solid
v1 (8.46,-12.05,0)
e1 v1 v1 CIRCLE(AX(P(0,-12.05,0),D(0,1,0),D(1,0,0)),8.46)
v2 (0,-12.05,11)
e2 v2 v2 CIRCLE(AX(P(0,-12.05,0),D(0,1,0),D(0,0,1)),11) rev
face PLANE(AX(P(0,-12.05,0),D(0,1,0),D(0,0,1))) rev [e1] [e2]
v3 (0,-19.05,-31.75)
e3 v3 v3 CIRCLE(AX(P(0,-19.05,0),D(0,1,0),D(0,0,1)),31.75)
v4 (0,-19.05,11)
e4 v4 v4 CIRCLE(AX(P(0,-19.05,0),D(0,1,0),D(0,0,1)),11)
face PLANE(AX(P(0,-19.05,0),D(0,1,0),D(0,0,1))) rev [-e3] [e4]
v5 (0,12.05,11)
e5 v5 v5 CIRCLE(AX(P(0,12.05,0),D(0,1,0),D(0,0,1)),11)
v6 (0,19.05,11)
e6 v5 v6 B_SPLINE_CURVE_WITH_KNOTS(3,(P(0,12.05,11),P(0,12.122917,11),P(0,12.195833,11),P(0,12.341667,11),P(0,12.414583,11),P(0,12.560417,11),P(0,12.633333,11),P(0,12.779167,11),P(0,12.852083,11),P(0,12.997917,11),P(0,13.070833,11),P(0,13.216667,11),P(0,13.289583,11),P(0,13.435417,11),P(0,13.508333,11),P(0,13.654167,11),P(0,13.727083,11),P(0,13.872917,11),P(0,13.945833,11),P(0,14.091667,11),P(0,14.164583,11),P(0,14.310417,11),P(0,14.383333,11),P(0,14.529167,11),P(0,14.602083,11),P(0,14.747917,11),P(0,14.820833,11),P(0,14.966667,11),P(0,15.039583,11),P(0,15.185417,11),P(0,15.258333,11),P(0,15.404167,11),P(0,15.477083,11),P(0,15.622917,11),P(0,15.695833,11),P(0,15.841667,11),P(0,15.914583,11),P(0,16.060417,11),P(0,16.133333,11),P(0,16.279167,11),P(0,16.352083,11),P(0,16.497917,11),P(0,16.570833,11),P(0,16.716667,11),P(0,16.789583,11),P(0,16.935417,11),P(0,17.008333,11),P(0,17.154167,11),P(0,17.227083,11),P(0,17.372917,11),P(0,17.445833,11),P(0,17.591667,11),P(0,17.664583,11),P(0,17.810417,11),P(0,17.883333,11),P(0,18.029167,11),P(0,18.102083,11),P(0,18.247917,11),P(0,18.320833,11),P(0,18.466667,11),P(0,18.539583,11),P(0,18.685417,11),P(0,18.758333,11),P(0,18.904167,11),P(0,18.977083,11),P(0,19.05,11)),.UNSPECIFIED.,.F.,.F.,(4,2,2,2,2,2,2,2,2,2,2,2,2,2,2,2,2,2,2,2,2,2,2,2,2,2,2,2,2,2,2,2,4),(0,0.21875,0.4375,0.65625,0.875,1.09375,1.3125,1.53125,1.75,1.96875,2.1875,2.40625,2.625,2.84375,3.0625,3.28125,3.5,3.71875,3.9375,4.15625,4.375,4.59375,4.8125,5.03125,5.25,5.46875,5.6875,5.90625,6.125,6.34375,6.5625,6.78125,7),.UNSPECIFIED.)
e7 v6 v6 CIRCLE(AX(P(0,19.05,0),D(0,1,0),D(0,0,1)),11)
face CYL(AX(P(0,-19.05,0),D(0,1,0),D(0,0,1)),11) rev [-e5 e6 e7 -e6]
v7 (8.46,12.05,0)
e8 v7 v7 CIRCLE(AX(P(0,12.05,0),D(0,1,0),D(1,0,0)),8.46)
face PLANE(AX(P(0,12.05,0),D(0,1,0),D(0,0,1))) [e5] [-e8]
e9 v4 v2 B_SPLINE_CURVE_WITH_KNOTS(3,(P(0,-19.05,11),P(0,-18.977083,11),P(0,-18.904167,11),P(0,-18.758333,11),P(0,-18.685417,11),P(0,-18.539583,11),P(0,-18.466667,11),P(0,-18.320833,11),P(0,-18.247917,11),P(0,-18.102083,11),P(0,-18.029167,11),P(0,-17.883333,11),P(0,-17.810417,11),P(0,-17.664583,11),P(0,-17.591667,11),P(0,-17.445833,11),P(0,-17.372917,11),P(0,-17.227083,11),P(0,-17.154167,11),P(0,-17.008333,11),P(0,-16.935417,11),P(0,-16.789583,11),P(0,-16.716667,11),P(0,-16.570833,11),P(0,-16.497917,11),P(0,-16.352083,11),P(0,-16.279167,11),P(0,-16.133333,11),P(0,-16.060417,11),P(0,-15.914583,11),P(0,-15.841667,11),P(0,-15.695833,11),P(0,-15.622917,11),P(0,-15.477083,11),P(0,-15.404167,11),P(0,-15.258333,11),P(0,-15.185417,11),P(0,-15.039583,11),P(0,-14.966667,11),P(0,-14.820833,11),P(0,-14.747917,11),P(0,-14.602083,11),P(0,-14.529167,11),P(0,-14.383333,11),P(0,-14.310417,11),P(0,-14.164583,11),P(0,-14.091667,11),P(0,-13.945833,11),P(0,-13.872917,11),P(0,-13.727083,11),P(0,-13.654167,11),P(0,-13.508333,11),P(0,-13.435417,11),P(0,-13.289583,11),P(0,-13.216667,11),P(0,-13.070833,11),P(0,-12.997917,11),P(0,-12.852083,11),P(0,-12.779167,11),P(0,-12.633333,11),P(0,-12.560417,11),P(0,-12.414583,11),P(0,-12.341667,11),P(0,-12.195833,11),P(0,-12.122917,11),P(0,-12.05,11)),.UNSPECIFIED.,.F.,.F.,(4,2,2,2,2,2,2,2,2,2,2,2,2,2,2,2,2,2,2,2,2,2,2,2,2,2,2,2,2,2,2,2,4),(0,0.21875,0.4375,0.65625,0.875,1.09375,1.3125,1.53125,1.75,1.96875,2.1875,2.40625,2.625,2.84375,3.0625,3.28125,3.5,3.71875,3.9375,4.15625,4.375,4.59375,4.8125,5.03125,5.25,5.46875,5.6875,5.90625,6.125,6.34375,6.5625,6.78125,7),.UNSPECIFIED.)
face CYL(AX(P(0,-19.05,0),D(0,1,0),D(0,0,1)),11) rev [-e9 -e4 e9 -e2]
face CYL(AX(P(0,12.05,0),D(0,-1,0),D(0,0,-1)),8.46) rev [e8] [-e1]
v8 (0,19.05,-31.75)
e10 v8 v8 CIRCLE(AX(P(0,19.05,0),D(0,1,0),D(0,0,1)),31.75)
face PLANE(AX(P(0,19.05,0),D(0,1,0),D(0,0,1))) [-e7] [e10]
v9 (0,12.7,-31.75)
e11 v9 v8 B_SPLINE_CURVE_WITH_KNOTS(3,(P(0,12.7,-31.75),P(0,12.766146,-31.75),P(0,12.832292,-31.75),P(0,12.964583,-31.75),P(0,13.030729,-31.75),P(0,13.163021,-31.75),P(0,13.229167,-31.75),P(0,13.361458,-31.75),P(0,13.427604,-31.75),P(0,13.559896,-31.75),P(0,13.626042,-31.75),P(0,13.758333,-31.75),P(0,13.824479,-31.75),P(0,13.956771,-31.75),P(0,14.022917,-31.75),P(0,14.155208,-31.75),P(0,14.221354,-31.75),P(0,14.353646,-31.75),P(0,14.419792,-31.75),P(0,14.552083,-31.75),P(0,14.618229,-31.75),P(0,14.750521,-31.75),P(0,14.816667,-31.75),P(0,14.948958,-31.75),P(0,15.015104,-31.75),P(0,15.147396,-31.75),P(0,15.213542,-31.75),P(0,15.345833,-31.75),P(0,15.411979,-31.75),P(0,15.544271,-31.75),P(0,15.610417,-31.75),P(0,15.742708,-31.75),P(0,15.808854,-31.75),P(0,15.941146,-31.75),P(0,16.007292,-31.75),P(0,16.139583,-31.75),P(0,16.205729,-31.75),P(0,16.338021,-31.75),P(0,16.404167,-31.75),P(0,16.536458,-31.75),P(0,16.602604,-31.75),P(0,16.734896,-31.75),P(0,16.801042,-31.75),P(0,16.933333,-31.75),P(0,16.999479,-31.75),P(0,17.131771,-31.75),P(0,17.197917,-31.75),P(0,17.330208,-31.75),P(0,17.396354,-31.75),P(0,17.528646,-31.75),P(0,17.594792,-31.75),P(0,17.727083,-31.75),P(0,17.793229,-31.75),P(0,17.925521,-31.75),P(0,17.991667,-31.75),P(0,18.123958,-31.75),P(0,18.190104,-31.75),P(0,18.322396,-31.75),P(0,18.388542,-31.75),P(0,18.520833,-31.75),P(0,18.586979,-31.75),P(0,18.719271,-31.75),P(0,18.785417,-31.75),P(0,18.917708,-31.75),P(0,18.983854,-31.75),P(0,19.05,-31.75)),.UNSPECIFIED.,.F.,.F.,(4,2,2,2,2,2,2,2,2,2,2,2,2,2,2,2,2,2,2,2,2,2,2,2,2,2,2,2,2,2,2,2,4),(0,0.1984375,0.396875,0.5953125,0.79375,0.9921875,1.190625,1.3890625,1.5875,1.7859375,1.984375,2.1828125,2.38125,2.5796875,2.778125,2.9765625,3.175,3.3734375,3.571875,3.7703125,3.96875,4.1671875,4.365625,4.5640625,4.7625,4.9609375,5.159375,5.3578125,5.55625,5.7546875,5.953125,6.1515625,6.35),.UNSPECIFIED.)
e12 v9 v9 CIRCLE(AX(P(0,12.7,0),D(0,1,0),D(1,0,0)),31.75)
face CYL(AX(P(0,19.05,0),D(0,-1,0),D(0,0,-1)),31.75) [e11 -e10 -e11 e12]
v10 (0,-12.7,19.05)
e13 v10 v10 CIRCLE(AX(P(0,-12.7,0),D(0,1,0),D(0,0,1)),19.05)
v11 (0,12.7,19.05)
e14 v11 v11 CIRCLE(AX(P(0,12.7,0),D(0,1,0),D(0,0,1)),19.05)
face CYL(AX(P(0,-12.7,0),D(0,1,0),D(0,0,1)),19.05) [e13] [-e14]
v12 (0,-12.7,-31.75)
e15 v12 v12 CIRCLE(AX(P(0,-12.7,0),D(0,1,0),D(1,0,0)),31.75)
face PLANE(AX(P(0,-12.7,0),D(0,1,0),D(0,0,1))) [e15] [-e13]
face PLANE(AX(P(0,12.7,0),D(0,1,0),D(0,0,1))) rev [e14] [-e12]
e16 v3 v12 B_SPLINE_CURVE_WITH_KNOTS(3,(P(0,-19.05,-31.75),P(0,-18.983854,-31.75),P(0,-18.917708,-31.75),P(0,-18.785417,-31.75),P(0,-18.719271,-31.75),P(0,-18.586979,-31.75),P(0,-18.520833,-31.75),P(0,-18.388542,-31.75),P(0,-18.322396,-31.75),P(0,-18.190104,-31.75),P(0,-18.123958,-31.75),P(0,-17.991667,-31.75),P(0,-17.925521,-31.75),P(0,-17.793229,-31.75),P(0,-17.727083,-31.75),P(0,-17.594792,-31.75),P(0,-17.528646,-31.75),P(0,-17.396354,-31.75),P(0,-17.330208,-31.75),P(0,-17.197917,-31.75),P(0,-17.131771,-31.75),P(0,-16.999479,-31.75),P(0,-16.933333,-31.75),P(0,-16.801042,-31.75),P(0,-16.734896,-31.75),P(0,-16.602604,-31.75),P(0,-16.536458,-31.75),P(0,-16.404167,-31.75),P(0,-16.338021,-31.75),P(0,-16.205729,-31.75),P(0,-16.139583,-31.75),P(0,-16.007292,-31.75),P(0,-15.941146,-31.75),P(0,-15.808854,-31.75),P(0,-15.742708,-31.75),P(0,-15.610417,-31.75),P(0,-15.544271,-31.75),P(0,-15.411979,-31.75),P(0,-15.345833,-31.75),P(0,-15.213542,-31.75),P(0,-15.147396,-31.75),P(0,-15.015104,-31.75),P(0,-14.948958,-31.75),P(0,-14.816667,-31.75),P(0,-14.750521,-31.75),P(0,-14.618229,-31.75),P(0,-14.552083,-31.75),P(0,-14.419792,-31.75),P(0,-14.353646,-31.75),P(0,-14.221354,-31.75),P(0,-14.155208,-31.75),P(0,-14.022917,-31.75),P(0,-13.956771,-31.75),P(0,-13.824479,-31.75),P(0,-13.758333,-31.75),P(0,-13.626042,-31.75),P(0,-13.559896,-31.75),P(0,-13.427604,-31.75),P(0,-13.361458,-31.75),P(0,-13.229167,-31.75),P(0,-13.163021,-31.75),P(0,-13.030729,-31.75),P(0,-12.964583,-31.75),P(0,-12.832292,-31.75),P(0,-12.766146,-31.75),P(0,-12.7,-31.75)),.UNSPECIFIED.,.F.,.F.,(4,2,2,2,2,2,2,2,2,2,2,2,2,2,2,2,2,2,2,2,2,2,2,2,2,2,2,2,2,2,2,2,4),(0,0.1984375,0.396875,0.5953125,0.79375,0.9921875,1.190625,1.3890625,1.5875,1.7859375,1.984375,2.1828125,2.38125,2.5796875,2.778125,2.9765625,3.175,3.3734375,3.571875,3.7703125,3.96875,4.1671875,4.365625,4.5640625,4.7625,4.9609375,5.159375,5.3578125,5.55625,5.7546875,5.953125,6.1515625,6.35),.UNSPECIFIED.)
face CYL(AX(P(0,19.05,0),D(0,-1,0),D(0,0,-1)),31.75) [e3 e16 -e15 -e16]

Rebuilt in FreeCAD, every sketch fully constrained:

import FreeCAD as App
import Part
import Sketcher
from FreeCAD import Vector
Q = App.Units.Quantity

doc = App.newDocument("Part")
body = doc.addObject("PartDesign::Body", "Body")

# Sketch on XZ plane
sketch1 = body.newObject("Sketcher::SketchObject", "Sketch")
sketch1.AttachmentSupport = (doc.getObject("XZ_Plane"), [""])
sketch1.MapMode = "FlatFace"
sketch1.addGeometry(Part.Circle(Vector(0, 0, 0), Vector(0, 0, 1), 32), False)
sketch1.addConstraint([
    Sketcher.Constraint("Coincident", 0, 3, -1, 1),
    Sketcher.Constraint("Diameter", 0, Q("2.5 in")),
])
pad1 = body.newObject("PartDesign::Pad", "Pad")
pad1.Profile = sketch1
pad1.Length = Q("1.5 in")
pad1.Midplane = True

# Sketch on XZ plane
sketch2 = body.newObject("Sketcher::SketchObject", "Sketch001")
sketch2.AttachmentSupport = (doc.getObject("XZ_Plane"), [""])
sketch2.MapMode = "FlatFace"
sketch2.addGeometry([
    Part.Circle(Vector(0, 0, 0), Vector(0, 0, 1), 32),
    Part.Circle(Vector(0, 0, 0), Vector(0, 0, 1), 19),
], False)
sketch2.addConstraint([
    Sketcher.Constraint("Coincident", 0, 3, -1, 1),
    Sketcher.Constraint("Coincident", 1, 3, -1, 1),
    Sketcher.Constraint("Diameter", 0, Q("2.5 in")),
    Sketcher.Constraint("Diameter", 1, Q("1.5 in")),
])
pocket1 = body.newObject("PartDesign::Pocket", "Pocket")
pocket1.Profile = sketch2
pocket1.Length = Q("1 in")
pocket1.Midplane = True

# Sketch on XZ plane
sketch3 = body.newObject("Sketcher::SketchObject", "Sketch002")
sketch3.AttachmentSupport = (doc.getObject("XZ_Plane"), [""])
sketch3.MapMode = "FlatFace"
sketch3.addGeometry(Part.Circle(Vector(0, 0, 0), Vector(0, 0, 1), 11), False)
sketch3.addConstraint([
    Sketcher.Constraint("Coincident", 0, 3, -1, 1),
    Sketcher.Constraint("Diameter", 0, 22.0),
])
pocket2 = body.newObject("PartDesign::Pocket", "Pocket001")
pocket2.Profile = sketch3
pocket2.Type = "ThroughAll"
pocket2.Midplane = True

# Sketch on XZ plane
sketch4 = body.newObject("Sketcher::SketchObject", "Sketch003")
sketch4.AttachmentSupport = (doc.getObject("XZ_Plane"), [""])
sketch4.MapMode = "FlatFace"
sketch4.addGeometry([
    Part.Circle(Vector(0, 0, 0), Vector(0, 0, 1), 11),
    Part.Circle(Vector(0, 0, 0), Vector(0, 0, 1), 8),
], False)
sketch4.addConstraint([
    Sketcher.Constraint("Coincident", 0, 3, -1, 1),
    Sketcher.Constraint("Coincident", 1, 3, -1, 1),
    Sketcher.Constraint("Diameter", 0, 22.0),
    Sketcher.Constraint("Diameter", 1, 16.92),
])
pad2 = body.newObject("PartDesign::Pad", "Pad001")
pad2.Profile = sketch4
pad2.Length = 24.1
pad2.Midplane = True

doc.recompute()
